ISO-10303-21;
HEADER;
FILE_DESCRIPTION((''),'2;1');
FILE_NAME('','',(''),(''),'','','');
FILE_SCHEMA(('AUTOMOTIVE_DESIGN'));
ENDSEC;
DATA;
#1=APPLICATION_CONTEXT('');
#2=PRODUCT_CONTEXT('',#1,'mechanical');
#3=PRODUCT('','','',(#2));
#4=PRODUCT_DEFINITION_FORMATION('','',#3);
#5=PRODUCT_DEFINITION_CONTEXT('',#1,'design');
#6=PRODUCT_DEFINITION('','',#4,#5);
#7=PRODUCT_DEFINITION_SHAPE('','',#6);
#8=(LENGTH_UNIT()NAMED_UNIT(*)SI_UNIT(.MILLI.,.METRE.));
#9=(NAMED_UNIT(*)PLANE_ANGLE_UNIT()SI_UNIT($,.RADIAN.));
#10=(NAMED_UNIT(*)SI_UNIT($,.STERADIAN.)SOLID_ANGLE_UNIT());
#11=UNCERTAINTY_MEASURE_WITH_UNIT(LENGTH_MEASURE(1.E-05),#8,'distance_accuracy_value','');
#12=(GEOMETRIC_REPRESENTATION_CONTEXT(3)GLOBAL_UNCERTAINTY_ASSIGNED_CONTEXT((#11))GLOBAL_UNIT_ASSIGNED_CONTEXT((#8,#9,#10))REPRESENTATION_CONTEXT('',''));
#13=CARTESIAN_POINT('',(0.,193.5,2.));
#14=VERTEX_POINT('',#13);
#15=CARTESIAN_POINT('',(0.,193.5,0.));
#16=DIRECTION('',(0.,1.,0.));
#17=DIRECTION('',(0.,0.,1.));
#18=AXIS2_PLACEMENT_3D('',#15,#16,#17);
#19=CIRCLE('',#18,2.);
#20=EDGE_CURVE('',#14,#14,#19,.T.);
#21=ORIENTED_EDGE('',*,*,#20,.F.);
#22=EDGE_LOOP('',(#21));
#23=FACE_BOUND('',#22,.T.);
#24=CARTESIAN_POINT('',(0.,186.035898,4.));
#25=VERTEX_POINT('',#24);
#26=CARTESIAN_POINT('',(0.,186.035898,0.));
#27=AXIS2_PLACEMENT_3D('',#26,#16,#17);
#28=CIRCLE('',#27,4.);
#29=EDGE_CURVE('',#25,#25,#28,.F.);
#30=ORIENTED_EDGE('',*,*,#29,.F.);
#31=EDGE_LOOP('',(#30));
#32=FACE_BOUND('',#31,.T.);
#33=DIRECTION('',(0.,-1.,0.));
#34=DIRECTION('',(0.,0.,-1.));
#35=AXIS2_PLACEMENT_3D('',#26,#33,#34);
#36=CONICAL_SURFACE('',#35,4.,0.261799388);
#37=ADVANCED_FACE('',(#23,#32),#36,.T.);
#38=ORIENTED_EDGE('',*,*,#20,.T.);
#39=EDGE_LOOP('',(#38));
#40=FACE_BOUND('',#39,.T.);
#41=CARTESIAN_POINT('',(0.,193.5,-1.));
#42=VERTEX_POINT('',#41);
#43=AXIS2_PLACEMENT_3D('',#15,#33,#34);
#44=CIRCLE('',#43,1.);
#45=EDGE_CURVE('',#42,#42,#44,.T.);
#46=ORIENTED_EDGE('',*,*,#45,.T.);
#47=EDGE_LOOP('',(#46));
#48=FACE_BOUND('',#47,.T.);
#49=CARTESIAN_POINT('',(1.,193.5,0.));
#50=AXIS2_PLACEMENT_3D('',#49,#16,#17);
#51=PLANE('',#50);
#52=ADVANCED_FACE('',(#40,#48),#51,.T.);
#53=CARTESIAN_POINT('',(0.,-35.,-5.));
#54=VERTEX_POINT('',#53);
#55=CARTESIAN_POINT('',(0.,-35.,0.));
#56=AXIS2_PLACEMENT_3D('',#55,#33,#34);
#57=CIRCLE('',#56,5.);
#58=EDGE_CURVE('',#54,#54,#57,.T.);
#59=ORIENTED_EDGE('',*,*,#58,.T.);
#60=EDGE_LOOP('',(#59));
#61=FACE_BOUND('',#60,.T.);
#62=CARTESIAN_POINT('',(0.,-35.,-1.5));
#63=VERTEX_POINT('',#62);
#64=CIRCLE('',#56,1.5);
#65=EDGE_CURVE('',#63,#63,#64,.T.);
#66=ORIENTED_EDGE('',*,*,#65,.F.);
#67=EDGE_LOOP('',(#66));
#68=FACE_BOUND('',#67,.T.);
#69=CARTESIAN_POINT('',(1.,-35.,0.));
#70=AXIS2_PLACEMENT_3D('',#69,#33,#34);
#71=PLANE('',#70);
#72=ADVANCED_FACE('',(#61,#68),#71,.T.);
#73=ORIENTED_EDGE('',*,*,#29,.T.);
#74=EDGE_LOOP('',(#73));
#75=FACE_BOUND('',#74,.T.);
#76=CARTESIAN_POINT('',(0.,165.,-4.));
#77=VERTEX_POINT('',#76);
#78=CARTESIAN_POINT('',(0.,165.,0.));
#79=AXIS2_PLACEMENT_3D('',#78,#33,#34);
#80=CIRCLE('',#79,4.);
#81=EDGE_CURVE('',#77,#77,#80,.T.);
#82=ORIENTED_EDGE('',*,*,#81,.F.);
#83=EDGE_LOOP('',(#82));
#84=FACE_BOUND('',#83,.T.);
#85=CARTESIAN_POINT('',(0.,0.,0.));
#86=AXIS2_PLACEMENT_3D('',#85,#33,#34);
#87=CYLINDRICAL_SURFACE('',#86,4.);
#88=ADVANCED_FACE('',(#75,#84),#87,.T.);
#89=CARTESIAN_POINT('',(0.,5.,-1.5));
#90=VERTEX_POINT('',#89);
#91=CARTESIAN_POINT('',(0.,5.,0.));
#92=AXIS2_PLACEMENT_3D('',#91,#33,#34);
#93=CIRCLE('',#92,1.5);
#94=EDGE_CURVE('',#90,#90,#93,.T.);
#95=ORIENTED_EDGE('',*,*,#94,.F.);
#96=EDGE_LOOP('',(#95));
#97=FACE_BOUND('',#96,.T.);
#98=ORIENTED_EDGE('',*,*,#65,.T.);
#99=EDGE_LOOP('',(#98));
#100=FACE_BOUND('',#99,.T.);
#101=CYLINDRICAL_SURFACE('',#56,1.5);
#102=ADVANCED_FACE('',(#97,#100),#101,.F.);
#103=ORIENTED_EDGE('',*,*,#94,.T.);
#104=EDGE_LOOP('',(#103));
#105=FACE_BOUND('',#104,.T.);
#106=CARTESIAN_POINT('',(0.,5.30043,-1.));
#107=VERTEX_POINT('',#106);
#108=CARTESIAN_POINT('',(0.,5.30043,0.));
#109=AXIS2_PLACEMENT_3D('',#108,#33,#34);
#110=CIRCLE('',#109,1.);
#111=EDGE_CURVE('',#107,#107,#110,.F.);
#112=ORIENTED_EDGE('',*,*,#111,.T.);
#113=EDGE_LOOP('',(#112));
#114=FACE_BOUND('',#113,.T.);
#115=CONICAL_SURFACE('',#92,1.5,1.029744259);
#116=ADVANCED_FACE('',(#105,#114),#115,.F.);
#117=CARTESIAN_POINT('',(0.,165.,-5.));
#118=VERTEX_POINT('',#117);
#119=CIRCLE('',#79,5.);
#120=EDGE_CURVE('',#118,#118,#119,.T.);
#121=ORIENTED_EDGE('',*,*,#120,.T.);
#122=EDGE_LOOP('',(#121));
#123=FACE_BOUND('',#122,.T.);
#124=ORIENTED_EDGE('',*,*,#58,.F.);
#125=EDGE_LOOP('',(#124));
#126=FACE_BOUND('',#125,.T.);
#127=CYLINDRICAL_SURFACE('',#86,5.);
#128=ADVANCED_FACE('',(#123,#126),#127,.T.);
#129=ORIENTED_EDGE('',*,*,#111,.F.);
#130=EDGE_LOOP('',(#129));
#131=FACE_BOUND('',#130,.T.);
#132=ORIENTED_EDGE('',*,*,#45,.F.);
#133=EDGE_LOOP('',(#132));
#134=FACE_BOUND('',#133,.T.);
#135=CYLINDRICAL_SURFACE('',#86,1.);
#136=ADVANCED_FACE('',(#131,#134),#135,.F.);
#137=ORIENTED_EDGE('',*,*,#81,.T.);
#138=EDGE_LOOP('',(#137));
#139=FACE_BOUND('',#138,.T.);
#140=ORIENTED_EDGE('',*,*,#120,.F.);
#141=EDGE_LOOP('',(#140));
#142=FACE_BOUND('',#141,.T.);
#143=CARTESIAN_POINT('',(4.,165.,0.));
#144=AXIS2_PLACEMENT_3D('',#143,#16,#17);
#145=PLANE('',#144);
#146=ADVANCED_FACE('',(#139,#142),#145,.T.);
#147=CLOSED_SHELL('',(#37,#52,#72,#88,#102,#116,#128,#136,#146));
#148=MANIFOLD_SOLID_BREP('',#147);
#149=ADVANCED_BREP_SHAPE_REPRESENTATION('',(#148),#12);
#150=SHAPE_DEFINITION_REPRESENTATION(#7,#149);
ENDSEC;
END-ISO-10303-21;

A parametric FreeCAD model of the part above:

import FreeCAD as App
import Part
import Sketcher

V = App.Vector


def edges_at(feature, points):
    """Names of the edges that pass closest to the given points."""
    edges = feature.Shape.Edges
    near = lambda p: min(range(len(edges)), key=lambda i: edges[i].distToShape(Part.Vertex(*p))[0])
    return sorted({f"Edge{near(p) + 1}" for p in points})

doc = App.newDocument("Part")
body = doc.addObject("PartDesign::Body", "Body")

sketch1 = body.newObject("Sketcher::SketchObject", "Sketch")
sketch1.AttachmentSupport = (doc.getObject("XY_Plane"), [""])
sketch1.MapMode = "FlatFace"
sketch1.addGeometry([
    Part.LineSegment(V(1, 193.5, 0), V(1, -35, 0)),
    Part.LineSegment(V(1, -35, 0), V(5, -35, 0)),
    Part.LineSegment(V(5, -35, 0), V(5, 165, 0)),
    Part.LineSegment(V(5, 165, 0), V(4, 165, 0)),
    Part.LineSegment(V(4, 165, 0), V(4, 193.5, 0)),
    Part.LineSegment(V(4, 193.5, 0), V(1, 193.5, 0)),
], False)
sketch1.addConstraint([
    Sketcher.Constraint("Coincident", 0, 2, 1, 1),
    Sketcher.Constraint("Coincident", 1, 2, 2, 1),
    Sketcher.Constraint("Coincident", 2, 2, 3, 1),
    Sketcher.Constraint("Coincident", 3, 2, 4, 1),
    Sketcher.Constraint("Coincident", 4, 2, 5, 1),
    Sketcher.Constraint("Coincident", 5, 2, 0, 1),
    Sketcher.Constraint("Vertical", 0),
    Sketcher.Constraint("Horizontal", 1),
    Sketcher.Constraint("Vertical", 2),
    Sketcher.Constraint("Horizontal", 3),
    Sketcher.Constraint("Vertical", 4),
    Sketcher.Constraint("Horizontal", 5),
    Sketcher.Constraint("DistanceX", 1, 1, 1, 2, 4.0),
    Sketcher.Constraint("DistanceX", 3, 2, 3, 1, 1.0),
    Sketcher.Constraint("DistanceY", 2, 1, 2, 2, 200.0),
    Sketcher.Constraint("DistanceY", 0, 2, 0, 1, 228.5),
    Sketcher.Constraint("DistanceX", -1, 1, 0, 2, 1.0),
    Sketcher.Constraint("DistanceY", 0, 2, -1, 1, 35.0),
])
revolution = body.newObject("PartDesign::Revolution", "Revolution")
revolution.Profile = sketch1
revolution.ReferenceAxis = (sketch1, ["V_Axis"])
revolution.Angle = 360

sketch2 = body.newObject("Sketcher::SketchObject", "Sketch001")
sketch2.AttachmentSupport = (doc.getObject("XZ_Plane"), [""])
sketch2.MapMode = "FlatFace"
sketch2.AttachmentOffset = App.Placement(V(0, 0, 35), App.Rotation())
sketch2.addGeometry(Part.Circle(V(0, 0, 0), V(0, 0, 1), 1.5), False)
sketch2.addConstraint([
    Sketcher.Constraint("Coincident", 0, 3, -1, 1),
    Sketcher.Constraint("Diameter", 0, 3.0),
])
doc.recompute()
hole = body.newObject("PartDesign::Hole", "Hole")
hole.Profile = sketch2
hole.ThreadType = "None"
hole.Diameter = 3
hole.DepthType = "Dimension"
hole.Depth = 40
hole.DrillPoint = "Angled"
hole.DrillPointAngle = 118
doc.recompute()

chamfer = body.newObject("PartDesign::Chamfer", "Chamfer")
chamfer.Base = (hole, edges_at(hole, [(0, 193.5, 4)]))
chamfer.ChamferType = "Two distances"
chamfer.Size = 2
chamfer.Size2 = 7.464102

doc.recompute()
